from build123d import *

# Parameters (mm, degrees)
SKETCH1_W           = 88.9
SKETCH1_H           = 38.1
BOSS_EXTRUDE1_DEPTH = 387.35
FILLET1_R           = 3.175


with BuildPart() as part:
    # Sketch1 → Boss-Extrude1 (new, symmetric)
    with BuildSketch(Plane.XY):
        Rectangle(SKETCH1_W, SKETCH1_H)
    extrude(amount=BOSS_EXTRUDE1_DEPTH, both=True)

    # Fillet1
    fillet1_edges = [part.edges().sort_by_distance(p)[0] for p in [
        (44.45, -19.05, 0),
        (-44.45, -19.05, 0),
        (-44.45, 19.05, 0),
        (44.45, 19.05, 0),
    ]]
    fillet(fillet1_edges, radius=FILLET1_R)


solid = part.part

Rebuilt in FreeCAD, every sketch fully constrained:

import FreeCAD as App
import Part
import Sketcher
Q = App.Units.Quantity


def edges_at(feature, points):
    """Names of the edges that pass closest to the given points."""
    edges = feature.Shape.Edges
    near = lambda p: min(range(len(edges)), key=lambda i: edges[i].distToShape(Part.Vertex(*p))[0])
    return sorted({f"Edge{near(p) + 1}" for p in points})

doc = App.newDocument("Part")
body = doc.addObject("PartDesign::Body", "Body")

# Sketch on XY plane
sketch1 = doc.addObject("Sketcher::SketchObject", "Sketch")
body.addObject(sketch1)
sketch1.AttachmentSupport = (doc.XY_Plane, [""])
sketch1.MapMode = "FlatFace"
sketch1.addGeometry([
    Part.LineSegment(App.Vector(-44, 19, 0), App.Vector(-44, -19, 0)),
    Part.LineSegment(App.Vector(-44, -19, 0), App.Vector(44, -19, 0)),
    Part.LineSegment(App.Vector(44, -19, 0), App.Vector(44, 19, 0)),
    Part.LineSegment(App.Vector(44, 19, 0), App.Vector(-44, 19, 0)),
], False)
sketch1.addConstraint([
    Sketcher.Constraint("Coincident", 0, 2, 1, 1),
    Sketcher.Constraint("Coincident", 1, 2, 2, 1),
    Sketcher.Constraint("Coincident", 2, 2, 3, 1),
    Sketcher.Constraint("Coincident", 3, 2, 0, 1),
    Sketcher.Constraint("Vertical", 0),
    Sketcher.Constraint("Horizontal", 1),
    Sketcher.Constraint("Vertical", 2),
    Sketcher.Constraint("Horizontal", 3),
    Sketcher.Constraint("Symmetric", 0, 2, 2, 2, -1, 1),
    Sketcher.Constraint("DistanceX", 1, 1, 1, 2, Q("3.5 in")),
    Sketcher.Constraint("DistanceY", 0, 2, 0, 1, Q("1.5 in")),
])
pad1 = doc.addObject("PartDesign::Pad", "Pad")
body.addObject(pad1)
pad1.Profile = sketch1
pad1.Length = Q("30.5 in")
pad1.Midplane = True
doc.recompute()

fillet = doc.addObject("PartDesign::Fillet", "Fillet")
body.addObject(fillet)
fillet.Base = (pad1, edges_at(pad1, [
    (44.45, -19.05, 0),
    (-44.45, -19.05, 0),
    (-44.45, 19.05, 0),
    (44.45, 19.05, 0),
]))
fillet.Radius = Q("0.125 in")

doc.recompute()
